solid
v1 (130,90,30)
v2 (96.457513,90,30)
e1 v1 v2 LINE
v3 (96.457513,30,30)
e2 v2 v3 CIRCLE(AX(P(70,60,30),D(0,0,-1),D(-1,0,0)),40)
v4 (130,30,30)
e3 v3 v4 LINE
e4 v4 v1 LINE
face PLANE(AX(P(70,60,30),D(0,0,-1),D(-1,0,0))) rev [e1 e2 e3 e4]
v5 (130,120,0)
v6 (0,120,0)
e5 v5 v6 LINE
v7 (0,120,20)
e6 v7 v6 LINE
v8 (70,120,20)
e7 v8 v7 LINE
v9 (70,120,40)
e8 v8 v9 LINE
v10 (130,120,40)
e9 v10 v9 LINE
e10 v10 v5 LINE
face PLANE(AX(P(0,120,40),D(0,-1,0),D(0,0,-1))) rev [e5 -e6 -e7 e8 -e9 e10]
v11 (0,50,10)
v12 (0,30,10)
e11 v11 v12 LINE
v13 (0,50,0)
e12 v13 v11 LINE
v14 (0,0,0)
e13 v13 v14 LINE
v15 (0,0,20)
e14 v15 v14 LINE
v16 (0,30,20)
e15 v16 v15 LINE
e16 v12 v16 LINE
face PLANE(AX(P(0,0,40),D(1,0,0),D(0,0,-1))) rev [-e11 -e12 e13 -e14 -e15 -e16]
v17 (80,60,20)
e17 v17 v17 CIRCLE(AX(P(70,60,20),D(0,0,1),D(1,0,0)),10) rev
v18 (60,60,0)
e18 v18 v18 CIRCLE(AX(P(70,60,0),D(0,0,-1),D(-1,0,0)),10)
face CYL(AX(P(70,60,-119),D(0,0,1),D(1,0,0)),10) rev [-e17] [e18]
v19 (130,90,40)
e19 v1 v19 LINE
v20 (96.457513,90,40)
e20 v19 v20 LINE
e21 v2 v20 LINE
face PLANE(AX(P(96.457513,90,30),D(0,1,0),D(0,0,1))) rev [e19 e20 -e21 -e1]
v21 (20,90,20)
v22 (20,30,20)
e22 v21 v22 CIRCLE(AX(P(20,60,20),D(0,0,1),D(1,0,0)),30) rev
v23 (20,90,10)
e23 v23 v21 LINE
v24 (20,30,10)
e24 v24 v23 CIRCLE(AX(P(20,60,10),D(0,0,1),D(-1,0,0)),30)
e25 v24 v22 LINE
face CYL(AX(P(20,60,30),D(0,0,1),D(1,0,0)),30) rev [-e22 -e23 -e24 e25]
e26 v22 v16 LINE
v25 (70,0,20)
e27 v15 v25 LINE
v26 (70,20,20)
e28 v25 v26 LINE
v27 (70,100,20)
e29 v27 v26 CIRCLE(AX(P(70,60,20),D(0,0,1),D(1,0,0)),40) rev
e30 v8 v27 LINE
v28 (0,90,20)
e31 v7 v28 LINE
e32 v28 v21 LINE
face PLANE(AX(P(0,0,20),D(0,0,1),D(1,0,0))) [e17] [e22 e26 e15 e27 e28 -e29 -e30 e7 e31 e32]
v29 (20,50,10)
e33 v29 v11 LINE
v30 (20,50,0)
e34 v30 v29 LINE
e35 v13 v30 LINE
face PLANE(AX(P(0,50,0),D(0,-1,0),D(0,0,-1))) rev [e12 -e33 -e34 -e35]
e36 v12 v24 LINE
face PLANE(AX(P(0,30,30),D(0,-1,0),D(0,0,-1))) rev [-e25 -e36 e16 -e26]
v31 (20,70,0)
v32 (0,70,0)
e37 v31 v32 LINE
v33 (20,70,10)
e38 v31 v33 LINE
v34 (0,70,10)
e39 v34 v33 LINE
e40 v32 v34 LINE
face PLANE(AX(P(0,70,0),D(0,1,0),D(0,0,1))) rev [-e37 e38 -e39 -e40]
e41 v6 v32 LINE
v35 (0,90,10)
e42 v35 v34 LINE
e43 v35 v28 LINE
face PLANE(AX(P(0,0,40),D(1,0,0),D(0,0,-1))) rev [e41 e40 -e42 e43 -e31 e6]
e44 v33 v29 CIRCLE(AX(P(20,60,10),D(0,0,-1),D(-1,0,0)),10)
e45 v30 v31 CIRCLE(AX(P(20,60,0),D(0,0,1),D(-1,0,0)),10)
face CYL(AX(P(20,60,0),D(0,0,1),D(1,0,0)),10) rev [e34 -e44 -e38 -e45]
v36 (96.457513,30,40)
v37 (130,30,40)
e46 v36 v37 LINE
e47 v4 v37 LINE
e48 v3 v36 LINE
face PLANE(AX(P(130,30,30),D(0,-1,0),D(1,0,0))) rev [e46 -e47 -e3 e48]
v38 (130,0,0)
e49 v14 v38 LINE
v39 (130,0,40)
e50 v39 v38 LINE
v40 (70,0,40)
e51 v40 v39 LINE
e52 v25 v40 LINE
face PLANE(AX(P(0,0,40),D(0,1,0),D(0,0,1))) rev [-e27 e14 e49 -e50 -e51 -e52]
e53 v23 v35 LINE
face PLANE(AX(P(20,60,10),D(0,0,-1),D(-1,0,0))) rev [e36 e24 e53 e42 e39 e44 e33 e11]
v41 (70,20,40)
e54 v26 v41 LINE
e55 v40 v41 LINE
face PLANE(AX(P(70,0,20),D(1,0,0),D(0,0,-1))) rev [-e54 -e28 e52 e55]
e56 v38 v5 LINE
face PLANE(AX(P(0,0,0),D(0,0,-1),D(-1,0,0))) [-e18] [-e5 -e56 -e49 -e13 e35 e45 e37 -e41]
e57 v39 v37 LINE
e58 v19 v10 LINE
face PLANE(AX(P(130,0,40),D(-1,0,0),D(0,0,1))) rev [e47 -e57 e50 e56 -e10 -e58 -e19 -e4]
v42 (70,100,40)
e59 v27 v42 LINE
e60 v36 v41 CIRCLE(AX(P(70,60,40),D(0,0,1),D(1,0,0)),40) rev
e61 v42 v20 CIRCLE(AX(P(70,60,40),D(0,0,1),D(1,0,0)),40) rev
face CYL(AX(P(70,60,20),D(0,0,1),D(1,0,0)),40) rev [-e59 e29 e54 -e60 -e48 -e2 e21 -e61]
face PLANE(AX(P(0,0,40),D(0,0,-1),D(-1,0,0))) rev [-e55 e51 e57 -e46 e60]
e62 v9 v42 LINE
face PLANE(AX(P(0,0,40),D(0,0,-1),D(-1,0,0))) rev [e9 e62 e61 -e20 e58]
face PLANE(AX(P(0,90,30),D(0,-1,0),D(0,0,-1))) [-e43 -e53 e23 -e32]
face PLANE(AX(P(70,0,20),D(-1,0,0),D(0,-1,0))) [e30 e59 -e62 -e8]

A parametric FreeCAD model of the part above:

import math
import FreeCAD as App
import Part
import Sketcher

V = App.Vector
Q = App.Units.Quantity

doc = App.newDocument("Part")
body = doc.addObject("PartDesign::Body", "Body")

sketch1 = body.newObject("Sketcher::SketchObject", "Sketch")
sketch1.AttachmentSupport = (doc.getObject("XY_Plane"), [""])
sketch1.MapMode = "FlatFace"
sketch1.addGeometry(Part.LineSegment(V(0, 120, 0), V(0, 0, 0)), False)
sketch1.addGeometry(Part.LineSegment(V(0, 0, 0), V(130, 0, 0)), False)
sketch1.addGeometry(Part.LineSegment(V(130, 0, 0), V(130, 120, 0)), False)
sketch1.addGeometry(Part.LineSegment(V(130, 120, 0), V(0, 120, 0)), False)
sketch1.addConstraint(Sketcher.Constraint("Coincident", 0, 2, 1, 1))
sketch1.addConstraint(Sketcher.Constraint("Coincident", 1, 2, 2, 1))
sketch1.addConstraint(Sketcher.Constraint("Coincident", 2, 2, 3, 1))
sketch1.addConstraint(Sketcher.Constraint("Coincident", 3, 2, 0, 1))
sketch1.addConstraint(Sketcher.Constraint("Vertical", 0))
sketch1.addConstraint(Sketcher.Constraint("Horizontal", 1))
sketch1.addConstraint(Sketcher.Constraint("Vertical", 2))
sketch1.addConstraint(Sketcher.Constraint("Horizontal", 3))
sketch1.addConstraint(Sketcher.Constraint("Coincident", 0, 2, -1, 1))
sketch1.addConstraint(Sketcher.Constraint("DistanceX", 1, 1, 1, 2, Q("130 mm")))
sketch1.addConstraint(Sketcher.Constraint("DistanceY", 0, 2, 0, 1, Q("120 mm")))
pad1 = body.newObject("PartDesign::Pad", "Pad")
pad1.Profile = sketch1
pad1.Length = 40

sketch2 = body.newObject("Sketcher::SketchObject", "Sketch001")
sketch2.AttachmentSupport = (doc.getObject("XY_Plane"), [""])
sketch2.MapMode = "FlatFace"
sketch2.AttachmentOffset = App.Placement(V(0, 0, 40), App.Rotation())
sketch2.addGeometry(Part.LineSegment(V(20, 70, 0), V(0, 70, 0)), False)
sketch2.addGeometry(Part.LineSegment(V(0, 70, 0), V(0, 50, 0)), False)
sketch2.addGeometry(Part.LineSegment(V(0, 50, 0), V(20, 50, 0)), False)
sketch2.addGeometry(Part.ArcOfCircle(Part.Circle(V(20, 60, 0), V(0, 0, 1), 10), math.radians(-90), math.radians(90)), False)
sketch2.addConstraint(Sketcher.Constraint("Coincident", 0, 2, 1, 1))
sketch2.addConstraint(Sketcher.Constraint("Coincident", 1, 2, 2, 1))
sketch2.addConstraint(Sketcher.Constraint("Tangent", 2, 2, 3, 1))
sketch2.addConstraint(Sketcher.Constraint("Tangent", 3, 2, 0, 1))
sketch2.addConstraint(Sketcher.Constraint("Horizontal", 0))
sketch2.addConstraint(Sketcher.Constraint("Vertical", 1))
sketch2.addConstraint(Sketcher.Constraint("Horizontal", 2))
sketch2.addConstraint(Sketcher.Constraint("PointOnObject", 0, 2, -2))
sketch2.addConstraint(Sketcher.Constraint("Equal", 2, 1))
sketch2.addConstraint(Sketcher.Constraint("Radius", 3, Q("10 mm")))
sketch2.addConstraint(Sketcher.Constraint("DistanceY", -1, 1, 3, 3, Q("60 mm")))
pocket1 = body.newObject("PartDesign::Pocket", "Pocket")
pocket1.Profile = sketch2
pocket1.Length = 40

sketch3 = body.newObject("Sketcher::SketchObject", "Sketch002")
sketch3.AttachmentSupport = (doc.getObject("XY_Plane"), [""])
sketch3.MapMode = "FlatFace"
sketch3.AttachmentOffset = App.Placement(V(0, 0, 40), App.Rotation())
sketch3.addGeometry(Part.LineSegment(V(20, 90, 0), V(0, 90, 0)), False)
sketch3.addGeometry(Part.LineSegment(V(0, 90, 0), V(0, 70, 0)), False)
sketch3.addGeometry(Part.LineSegment(V(0, 70, 0), V(20, 70, 0)), False)
sketch3.addGeometry(Part.ArcOfCircle(Part.Circle(V(20, 60, 0), V(0, 0, 1), 10), math.radians(-90), math.radians(90)), False)
sketch3.addGeometry(Part.LineSegment(V(20, 50, 0), V(0, 50, 0)), False)
sketch3.addGeometry(Part.LineSegment(V(0, 50, 0), V(0, 30, 0)), False)
sketch3.addGeometry(Part.LineSegment(V(0, 30, 0), V(20, 30, 0)), False)
sketch3.addGeometry(Part.ArcOfCircle(Part.Circle(V(20, 60, 0), V(0, 0, 1), 30), math.radians(-90), math.radians(90)), False)
sketch3.addConstraint(Sketcher.Constraint("Coincident", 0, 2, 1, 1))
sketch3.addConstraint(Sketcher.Constraint("Coincident", 1, 2, 2, 1))
sketch3.addConstraint(Sketcher.Constraint("Tangent", 2, 2, 3, 2))
sketch3.addConstraint(Sketcher.Constraint("Tangent", 3, 1, 4, 1))
sketch3.addConstraint(Sketcher.Constraint("Coincident", 4, 2, 5, 1))
sketch3.addConstraint(Sketcher.Constraint("Coincident", 5, 2, 6, 1))
sketch3.addConstraint(Sketcher.Constraint("Tangent", 6, 2, 7, 1))
sketch3.addConstraint(Sketcher.Constraint("Tangent", 7, 2, 0, 1))
sketch3.addConstraint(Sketcher.Constraint("Horizontal", 0))
sketch3.addConstraint(Sketcher.Constraint("Vertical", 1))
sketch3.addConstraint(Sketcher.Constraint("Horizontal", 2))
sketch3.addConstraint(Sketcher.Constraint("Horizontal", 4))
sketch3.addConstraint(Sketcher.Constraint("Vertical", 5))
sketch3.addConstraint(Sketcher.Constraint("Horizontal", 6))
sketch3.addConstraint(Sketcher.Constraint("Coincident", 7, 3, 3, 3))
sketch3.addConstraint(Sketcher.Constraint("PointOnObject", 0, 2, -2))
sketch3.addConstraint(Sketcher.Constraint("PointOnObject", 4, 2, -2))
sketch3.addConstraint(Sketcher.Constraint("Equal", 6, 1))
sketch3.addConstraint(Sketcher.Constraint("Radius", 3, Q("10 mm")))
sketch3.addConstraint(Sketcher.Constraint("Radius", 7, Q("30 mm")))
sketch3.addConstraint(Sketcher.Constraint("DistanceY", -1, 1, 3, 3, Q("60 mm")))
pocket2 = body.newObject("PartDesign::Pocket", "Pocket001")
pocket2.Profile = sketch3
pocket2.Length = 10

sketch4 = body.newObject("Sketcher::SketchObject", "Sketch003")
sketch4.AttachmentSupport = (doc.getObject("XY_Plane"), [""])
sketch4.MapMode = "FlatFace"
sketch4.AttachmentOffset = App.Placement(V(0, 0, 40), App.Rotation())
sketch4.addGeometry(Part.Circle(V(70, 60, 0), V(0, 0, 1), 10), False)
sketch4.addConstraint(Sketcher.Constraint("Diameter", 0, Q("20 mm")))
sketch4.addConstraint(Sketcher.Constraint("DistanceX", -1, 1, 0, 3, Q("70 mm")))
sketch4.addConstraint(Sketcher.Constraint("DistanceY", -1, 1, 0, 3, Q("60 mm")))
pocket3 = body.newObject("PartDesign::Pocket", "Pocket002")
pocket3.Profile = sketch4
pocket3.Length = 159

sketch5 = body.newObject("Sketcher::SketchObject", "Sketch004")
sketch5.AttachmentSupport = (doc.getObject("XY_Plane"), [""])
sketch5.MapMode = "FlatFace"
sketch5.AttachmentOffset = App.Placement(V(0, 0, 30), App.Rotation())
sketch5.addGeometry(Part.LineSegment(V(20, 90, 0), V(0, 90, 0)), False)
sketch5.addGeometry(Part.LineSegment(V(0, 90, 0), V(0, 70, 0)), False)
sketch5.addGeometry(Part.LineSegment(V(0, 70, 0), V(20, 70, 0)), False)
sketch5.addGeometry(Part.ArcOfCircle(Part.Circle(V(20, 60, 0), V(0, 0, 1), 10), math.radians(-90), math.radians(90)), False)
sketch5.addGeometry(Part.LineSegment(V(20, 50, 0), V(0, 50, 0)), False)
sketch5.addGeometry(Part.LineSegment(V(0, 50, 0), V(0, 30, 0)), False)
sketch5.addGeometry(Part.LineSegment(V(0, 30, 0), V(20, 30, 0)), False)
sketch5.addGeometry(Part.ArcOfCircle(Part.Circle(V(20, 60, 0), V(0, 0, 1), 30), math.radians(-90), math.radians(90)), False)
sketch5.addConstraint(Sketcher.Constraint("Coincident", 0, 2, 1, 1))
sketch5.addConstraint(Sketcher.Constraint("Coincident", 1, 2, 2, 1))
sketch5.addConstraint(Sketcher.Constraint("Tangent", 2, 2, 3, 2))
sketch5.addConstraint(Sketcher.Constraint("Tangent", 3, 1, 4, 1))
sketch5.addConstraint(Sketcher.Constraint("Coincident", 4, 2, 5, 1))
sketch5.addConstraint(Sketcher.Constraint("Coincident", 5, 2, 6, 1))
sketch5.addConstraint(Sketcher.Constraint("Tangent", 6, 2, 7, 1))
sketch5.addConstraint(Sketcher.Constraint("Tangent", 7, 2, 0, 1))
sketch5.addConstraint(Sketcher.Constraint("Horizontal", 0))
sketch5.addConstraint(Sketcher.Constraint("Vertical", 1))
sketch5.addConstraint(Sketcher.Constraint("Horizontal", 2))
sketch5.addConstraint(Sketcher.Constraint("Horizontal", 4))
sketch5.addConstraint(Sketcher.Constraint("Vertical", 5))
sketch5.addConstraint(Sketcher.Constraint("Horizontal", 6))
sketch5.addConstraint(Sketcher.Constraint("Coincident", 7, 3, 3, 3))
sketch5.addConstraint(Sketcher.Constraint("PointOnObject", 0, 2, -2))
sketch5.addConstraint(Sketcher.Constraint("PointOnObject", 4, 2, -2))
sketch5.addConstraint(Sketcher.Constraint("Equal", 6, 1))
sketch5.addConstraint(Sketcher.Constraint("Radius", 3, Q("10 mm")))
sketch5.addConstraint(Sketcher.Constraint("Radius", 7, Q("30 mm")))
sketch5.addConstraint(Sketcher.Constraint("DistanceY", -1, 1, 3, 3, Q("60 mm")))
pocket4 = body.newObject("PartDesign::Pocket", "Pocket003")
pocket4.Profile = sketch5
pocket4.Length = 20

sketch6 = body.newObject("Sketcher::SketchObject", "Sketch005")
sketch6.AttachmentSupport = (doc.getObject("XY_Plane"), [""])
sketch6.MapMode = "FlatFace"
sketch6.AttachmentOffset = App.Placement(V(0, 0, 40), App.Rotation())
sketch6.addGeometry(Part.LineSegment(V(0, 120, 0), V(0, 90, 0)), False)
sketch6.addGeometry(Part.LineSegment(V(0, 90, 0), V(20, 90, 0)), False)
sketch6.addGeometry(Part.ArcOfCircle(Part.Circle(V(20, 60, 0), V(0, 0, 1), 30), math.radians(-90), math.radians(90)), False)
sketch6.addGeometry(Part.LineSegment(V(20, 30, 0), V(0, 30, 0)), False)
sketch6.addGeometry(Part.LineSegment(V(0, 30, 0), V(0, 0, 0)), False)
sketch6.addGeometry(Part.LineSegment(V(0, 0, 0), V(70, 0, 0)), False)
sketch6.addGeometry(Part.LineSegment(V(70, 0, 0), V(70, 20, 0)), False)
sketch6.addGeometry(Part.ArcOfCircle(Part.Circle(V(70, 60, 0), V(0, 0, 1), 40), math.radians(-90), math.radians(90)), False)
sketch6.addGeometry(Part.LineSegment(V(70, 100, 0), V(70, 120, 0)), False)
sketch6.addGeometry(Part.LineSegment(V(70, 120, 0), V(0, 120, 0)), False)
sketch6.addGeometry(Part.Circle(V(70, 60, 0), V(0, 0, 1), 10), False)
sketch6.addConstraint(Sketcher.Constraint("Coincident", 0, 2, 1, 1))
sketch6.addConstraint(Sketcher.Constraint("Tangent", 1, 2, 2, 2))
sketch6.addConstraint(Sketcher.Constraint("Tangent", 2, 1, 3, 1))
sketch6.addConstraint(Sketcher.Constraint("Coincident", 3, 2, 4, 1))
sketch6.addConstraint(Sketcher.Constraint("Coincident", 4, 2, 5, 1))
sketch6.addConstraint(Sketcher.Constraint("Coincident", 5, 2, 6, 1))
sketch6.addConstraint(Sketcher.Constraint("Coincident", 6, 2, 7, 1))
sketch6.addConstraint(Sketcher.Constraint("Coincident", 7, 2, 8, 1))
sketch6.addConstraint(Sketcher.Constraint("Coincident", 8, 2, 9, 1))
sketch6.addConstraint(Sketcher.Constraint("Coincident", 9, 2, 0, 1))
sketch6.addConstraint(Sketcher.Constraint("Vertical", 0))
sketch6.addConstraint(Sketcher.Constraint("Horizontal", 1))
sketch6.addConstraint(Sketcher.Constraint("Horizontal", 3))
sketch6.addConstraint(Sketcher.Constraint("Vertical", 4))
sketch6.addConstraint(Sketcher.Constraint("Horizontal", 5))
sketch6.addConstraint(Sketcher.Constraint("Vertical", 6))
sketch6.addConstraint(Sketcher.Constraint("Vertical", 8))
sketch6.addConstraint(Sketcher.Constraint("Horizontal", 9))
sketch6.addConstraint(Sketcher.Constraint("Coincident", 4, 2, -1, 1))
sketch6.addConstraint(Sketcher.Constraint("Coincident", 10, 3, 7, 3))
sketch6.addConstraint(Sketcher.Constraint("PointOnObject", 0, 2, -2))
sketch6.addConstraint(Sketcher.Constraint("Horizontal", 2, 3, 7, 3))
sketch6.addConstraint(Sketcher.Constraint("Vertical", 10, 3, 5, 2))
sketch6.addConstraint(Sketcher.Constraint("Vertical", 6, 2, 7, 2))
sketch6.addConstraint(Sketcher.Constraint("Equal", 0, 4))
sketch6.addConstraint(Sketcher.Constraint("Equal", 3, 6))
sketch6.addConstraint(Sketcher.Constraint("Diameter", 10, Q("20 mm")))
sketch6.addConstraint(Sketcher.Constraint("Radius", 2, Q("30 mm")))
sketch6.addConstraint(Sketcher.Constraint("Radius", 7, Q("40 mm")))
sketch6.addConstraint(Sketcher.Constraint("DistanceX", 1, 1, 1, 2, Q("20 mm")))
sketch6.addConstraint(Sketcher.Constraint("DistanceX", 5, 1, 5, 2, Q("70 mm")))
pocket5 = body.newObject("PartDesign::Pocket", "Pocket004")
pocket5.Profile = sketch6
pocket5.Length = 20

sketch7 = body.newObject("Sketcher::SketchObject", "Sketch006")
sketch7.AttachmentSupport = (doc.getObject("XY_Plane"), [""])
sketch7.MapMode = "FlatFace"
sketch7.AttachmentOffset = App.Placement(V(0, 0, 40), App.Rotation())
sketch7.addGeometry(Part.LineSegment(V(130, 90, 0), V(96.457513, 90, 0)), False)
sketch7.addGeometry(Part.ArcOfCircle(Part.Circle(V(70, 60, 0), V(0, 0, 1), 40), math.radians(-48.590378), math.radians(48.590378)), False)
sketch7.addGeometry(Part.LineSegment(V(96.457513, 30, 0), V(130, 30, 0)), False)
sketch7.addGeometry(Part.LineSegment(V(130, 30, 0), V(130, 90, 0)), False)
sketch7.addConstraint(Sketcher.Constraint("Coincident", 0, 2, 1, 2))
sketch7.addConstraint(Sketcher.Constraint("Coincident", 1, 1, 2, 1))
sketch7.addConstraint(Sketcher.Constraint("Coincident", 2, 2, 3, 1))
sketch7.addConstraint(Sketcher.Constraint("Coincident", 3, 2, 0, 1))
sketch7.addConstraint(Sketcher.Constraint("Horizontal", 0))
sketch7.addConstraint(Sketcher.Constraint("Horizontal", 2))
sketch7.addConstraint(Sketcher.Constraint("Vertical", 3))
sketch7.addConstraint(Sketcher.Constraint("Vertical", 0, 2, 1, 1))
sketch7.addConstraint(Sketcher.Constraint("Radius", 1, Q("40 mm")))
sketch7.addConstraint(Sketcher.Constraint("DistanceY", 3, 1, 3, 2, Q("60 mm")))
sketch7.addConstraint(Sketcher.Constraint("DistanceX", -1, 1, 1, 3, Q("70 mm")))
sketch7.addConstraint(Sketcher.Constraint("DistanceY", -1, 1, 1, 3, Q("60 mm")))
sketch7.addConstraint(Sketcher.Constraint("DistanceX", -1, 1, 2, 2, Q("130 mm")))
pocket6 = body.newObject("PartDesign::Pocket", "Pocket005")
pocket6.Profile = sketch7
pocket6.Length = 10

doc.recompute()
